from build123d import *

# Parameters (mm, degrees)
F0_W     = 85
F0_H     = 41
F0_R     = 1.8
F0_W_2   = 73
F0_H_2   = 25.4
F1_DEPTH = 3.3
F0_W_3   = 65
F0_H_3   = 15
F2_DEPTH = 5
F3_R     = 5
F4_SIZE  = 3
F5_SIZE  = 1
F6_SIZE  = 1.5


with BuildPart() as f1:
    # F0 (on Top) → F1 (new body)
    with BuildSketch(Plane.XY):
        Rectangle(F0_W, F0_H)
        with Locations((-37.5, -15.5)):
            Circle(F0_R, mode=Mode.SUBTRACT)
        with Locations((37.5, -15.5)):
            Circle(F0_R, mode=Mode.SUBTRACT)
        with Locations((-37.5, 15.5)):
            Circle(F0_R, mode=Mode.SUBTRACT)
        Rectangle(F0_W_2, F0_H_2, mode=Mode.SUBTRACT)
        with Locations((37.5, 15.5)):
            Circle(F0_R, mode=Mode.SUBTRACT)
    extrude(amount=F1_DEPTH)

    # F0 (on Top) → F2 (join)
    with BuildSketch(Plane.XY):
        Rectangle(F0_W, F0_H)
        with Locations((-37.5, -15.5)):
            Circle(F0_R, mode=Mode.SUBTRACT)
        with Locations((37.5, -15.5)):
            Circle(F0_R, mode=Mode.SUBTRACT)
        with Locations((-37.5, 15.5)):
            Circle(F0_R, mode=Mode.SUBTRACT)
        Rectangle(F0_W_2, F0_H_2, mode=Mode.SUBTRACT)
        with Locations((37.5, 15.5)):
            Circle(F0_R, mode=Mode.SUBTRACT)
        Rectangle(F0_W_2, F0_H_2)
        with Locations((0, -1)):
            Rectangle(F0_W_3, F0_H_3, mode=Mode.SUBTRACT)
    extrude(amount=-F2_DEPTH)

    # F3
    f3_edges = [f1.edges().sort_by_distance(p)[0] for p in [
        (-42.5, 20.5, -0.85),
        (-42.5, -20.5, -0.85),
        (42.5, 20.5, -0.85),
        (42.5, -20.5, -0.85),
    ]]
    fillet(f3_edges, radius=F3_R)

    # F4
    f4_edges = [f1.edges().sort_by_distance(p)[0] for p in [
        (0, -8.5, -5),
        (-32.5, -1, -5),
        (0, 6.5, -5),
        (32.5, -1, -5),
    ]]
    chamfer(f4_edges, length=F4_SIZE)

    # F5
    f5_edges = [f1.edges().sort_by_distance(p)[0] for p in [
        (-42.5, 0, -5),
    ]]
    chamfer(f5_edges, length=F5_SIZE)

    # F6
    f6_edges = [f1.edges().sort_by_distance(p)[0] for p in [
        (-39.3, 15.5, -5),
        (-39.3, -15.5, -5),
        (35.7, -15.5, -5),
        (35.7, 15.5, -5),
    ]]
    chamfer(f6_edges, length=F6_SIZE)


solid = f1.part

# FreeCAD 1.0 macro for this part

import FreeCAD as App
import Part
import Sketcher

V = App.Vector


def edges_at(feature, points):
    """Names of the edges that pass closest to the given points."""
    edges = feature.Shape.Edges
    near = lambda p: min(range(len(edges)), key=lambda i: edges[i].distToShape(Part.Vertex(*p))[0])
    return sorted({f"Edge{near(p) + 1}" for p in points})

doc = App.newDocument("Part")
body = doc.addObject("PartDesign::Body", "Body")

sketch1 = body.newObject("Sketcher::SketchObject", "Sketch")
sketch1.AttachmentSupport = (doc.getObject("XY_Plane"), [""])
sketch1.MapMode = "FlatFace"
sketch1.addGeometry([
    Part.LineSegment(V(-42.5, 20.5, 0), V(-42.5, -20.5, 0)),
    Part.LineSegment(V(-42.5, -20.5, 0), V(42.5, -20.5, 0)),
    Part.LineSegment(V(42.5, -20.5, 0), V(42.5, 20.5, 0)),
    Part.LineSegment(V(42.5, 20.5, 0), V(-42.5, 20.5, 0)),
    Part.Circle(V(-37.5, -15.5, 0), V(0, 0, 1), 1.8),
    Part.Circle(V(37.5, -15.5, 0), V(0, 0, 1), 1.8),
    Part.Circle(V(-37.5, 15.5, 0), V(0, 0, 1), 1.8),
    Part.LineSegment(V(36.5, -12.7, 0), V(-36.5, -12.7, 0)),
    Part.LineSegment(V(-36.5, -12.7, 0), V(-36.5, 12.7, 0)),
    Part.LineSegment(V(-36.5, 12.7, 0), V(36.5, 12.7, 0)),
    Part.LineSegment(V(36.5, 12.7, 0), V(36.5, -12.7, 0)),
    Part.Circle(V(37.5, 15.5, 0), V(0, 0, 1), 1.8),
], False)
sketch1.addConstraint([
    Sketcher.Constraint("Coincident", 0, 2, 1, 1),
    Sketcher.Constraint("Coincident", 1, 2, 2, 1),
    Sketcher.Constraint("Coincident", 2, 2, 3, 1),
    Sketcher.Constraint("Coincident", 3, 2, 0, 1),
    Sketcher.Constraint("Coincident", 7, 2, 8, 1),
    Sketcher.Constraint("Coincident", 8, 2, 9, 1),
    Sketcher.Constraint("Coincident", 9, 2, 10, 1),
    Sketcher.Constraint("Coincident", 10, 2, 7, 1),
    Sketcher.Constraint("Vertical", 0),
    Sketcher.Constraint("Horizontal", 1),
    Sketcher.Constraint("Vertical", 2),
    Sketcher.Constraint("Horizontal", 3),
    Sketcher.Constraint("Horizontal", 7),
    Sketcher.Constraint("Vertical", 8),
    Sketcher.Constraint("Horizontal", 9),
    Sketcher.Constraint("Vertical", 10),
    Sketcher.Constraint("Equal", 4, 5),
    Sketcher.Constraint("Equal", 5, 6),
    Sketcher.Constraint("Equal", 6, 11),
    Sketcher.Constraint("Symmetric", 5, 3, 6, 3, -1, 1),
    Sketcher.Constraint("Symmetric", 4, 3, 11, 3, -1, 1),
    Sketcher.Constraint("Symmetric", 0, 2, 2, 2, -1, 1),
    Sketcher.Constraint("Symmetric", 7, 2, 9, 2, -1, 1),
    Sketcher.Constraint("Symmetric", 4, 3, 5, 3, -2),
    Sketcher.Constraint("Diameter", 4, 3.6),
    Sketcher.Constraint("DistanceX", 1, 1, 1, 2, 85.0),
    Sketcher.Constraint("DistanceX", 7, 2, 7, 1, 73.0),
    Sketcher.Constraint("DistanceY", 0, 2, 0, 1, 41.0),
    Sketcher.Constraint("DistanceY", 8, 1, 8, 2, 25.4),
    Sketcher.Constraint("DistanceX", 4, 3, 5, 3, 75.0),
    Sketcher.Constraint("DistanceY", 4, 3, 6, 3, 31.0),
])
pad1 = body.newObject("PartDesign::Pad", "Pad")
pad1.Profile = sketch1
pad1.Length = 3.3

sketch2 = body.newObject("Sketcher::SketchObject", "Sketch001")
sketch2.AttachmentSupport = (doc.getObject("XY_Plane"), [""])
sketch2.MapMode = "FlatFace"
sketch2.addGeometry([
    Part.LineSegment(V(-42.5, 20.5, 0), V(-42.5, -20.5, 0)),
    Part.LineSegment(V(-42.5, -20.5, 0), V(42.5, -20.5, 0)),
    Part.LineSegment(V(42.5, -20.5, 0), V(42.5, 20.5, 0)),
    Part.LineSegment(V(42.5, 20.5, 0), V(-42.5, 20.5, 0)),
    Part.Circle(V(-37.5, -15.5, 0), V(0, 0, 1), 1.8),
    Part.Circle(V(37.5, -15.5, 0), V(0, 0, 1), 1.8),
    Part.LineSegment(V(32.5, -8.5, 0), V(-32.5, -8.5, 0)),
    Part.LineSegment(V(-32.5, -8.5, 0), V(-32.5, 6.5, 0)),
    Part.LineSegment(V(-32.5, 6.5, 0), V(32.5, 6.5, 0)),
    Part.LineSegment(V(32.5, 6.5, 0), V(32.5, -8.5, 0)),
    Part.Circle(V(-37.5, 15.5, 0), V(0, 0, 1), 1.8),
    Part.Circle(V(37.5, 15.5, 0), V(0, 0, 1), 1.8),
], False)
sketch2.addConstraint([
    Sketcher.Constraint("Coincident", 0, 2, 1, 1),
    Sketcher.Constraint("Coincident", 1, 2, 2, 1),
    Sketcher.Constraint("Coincident", 2, 2, 3, 1),
    Sketcher.Constraint("Coincident", 3, 2, 0, 1),
    Sketcher.Constraint("Coincident", 6, 2, 7, 1),
    Sketcher.Constraint("Coincident", 7, 2, 8, 1),
    Sketcher.Constraint("Coincident", 8, 2, 9, 1),
    Sketcher.Constraint("Coincident", 9, 2, 6, 1),
    Sketcher.Constraint("Vertical", 0),
    Sketcher.Constraint("Horizontal", 1),
    Sketcher.Constraint("Vertical", 2),
    Sketcher.Constraint("Horizontal", 3),
    Sketcher.Constraint("Horizontal", 6),
    Sketcher.Constraint("Vertical", 7),
    Sketcher.Constraint("Horizontal", 8),
    Sketcher.Constraint("Vertical", 9),
    Sketcher.Constraint("Equal", 4, 5),
    Sketcher.Constraint("Equal", 5, 10),
    Sketcher.Constraint("Equal", 10, 11),
    Sketcher.Constraint("Symmetric", 5, 3, 10, 3, -1, 1),
    Sketcher.Constraint("Symmetric", 4, 3, 11, 3, -1, 1),
    Sketcher.Constraint("Symmetric", 0, 2, 2, 2, -1, 1),
    Sketcher.Constraint("Symmetric", 4, 3, 5, 3, -2),
    Sketcher.Constraint("Diameter", 4, 3.6),
    Sketcher.Constraint("DistanceX", 1, 1, 1, 2, 85.0),
    Sketcher.Constraint("DistanceX", 6, 2, 6, 1, 65.0),
    Sketcher.Constraint("DistanceY", 0, 2, 0, 1, 41.0),
    Sketcher.Constraint("DistanceY", 7, 1, 7, 2, 15.0),
    Sketcher.Constraint("DistanceX", 4, 3, 5, 3, 75.0),
    Sketcher.Constraint("DistanceY", 4, 3, 10, 3, 31.0),
    Sketcher.Constraint("DistanceX", 4, 3, 6, 2, 5.0),
    Sketcher.Constraint("DistanceY", 4, 3, 6, 2, 7.0),
])
pad2 = body.newObject("PartDesign::Pad", "Pad001")
pad2.Profile = sketch2
pad2.Length = 5
pad2.Reversed = True
doc.recompute()

fillet = body.newObject("PartDesign::Fillet", "Fillet")
fillet.Base = (pad2, edges_at(pad2, [
    (-42.5, 20.5, -0.85),
    (-42.5, -20.5, -0.85),
    (42.5, 20.5, -0.85),
    (42.5, -20.5, -0.85),
]))
fillet.Radius = 5
doc.recompute()

chamfer = body.newObject("PartDesign::Chamfer", "Chamfer")
chamfer.Base = (fillet, edges_at(fillet, [
    (0, -8.5, -5),
    (-32.5, -1, -5),
    (0, 6.5, -5),
    (32.5, -1, -5),
]))
chamfer.Size = 3
doc.recompute()

chamfer2 = body.newObject("PartDesign::Chamfer", "Chamfer001")
chamfer2.Base = (chamfer, edges_at(chamfer, [(-42.5, 0, -5)]))
chamfer2.Size = 1
doc.recompute()

chamfer3 = body.newObject("PartDesign::Chamfer", "Chamfer002")
chamfer3.Base = (chamfer2, edges_at(chamfer2, [
    (-39.3, 15.5, -5),
    (-39.3, -15.5, -5),
    (35.7, -15.5, -5),
    (35.7, 15.5, -5),
]))
chamfer3.Size = 1.5

doc.recompute()
